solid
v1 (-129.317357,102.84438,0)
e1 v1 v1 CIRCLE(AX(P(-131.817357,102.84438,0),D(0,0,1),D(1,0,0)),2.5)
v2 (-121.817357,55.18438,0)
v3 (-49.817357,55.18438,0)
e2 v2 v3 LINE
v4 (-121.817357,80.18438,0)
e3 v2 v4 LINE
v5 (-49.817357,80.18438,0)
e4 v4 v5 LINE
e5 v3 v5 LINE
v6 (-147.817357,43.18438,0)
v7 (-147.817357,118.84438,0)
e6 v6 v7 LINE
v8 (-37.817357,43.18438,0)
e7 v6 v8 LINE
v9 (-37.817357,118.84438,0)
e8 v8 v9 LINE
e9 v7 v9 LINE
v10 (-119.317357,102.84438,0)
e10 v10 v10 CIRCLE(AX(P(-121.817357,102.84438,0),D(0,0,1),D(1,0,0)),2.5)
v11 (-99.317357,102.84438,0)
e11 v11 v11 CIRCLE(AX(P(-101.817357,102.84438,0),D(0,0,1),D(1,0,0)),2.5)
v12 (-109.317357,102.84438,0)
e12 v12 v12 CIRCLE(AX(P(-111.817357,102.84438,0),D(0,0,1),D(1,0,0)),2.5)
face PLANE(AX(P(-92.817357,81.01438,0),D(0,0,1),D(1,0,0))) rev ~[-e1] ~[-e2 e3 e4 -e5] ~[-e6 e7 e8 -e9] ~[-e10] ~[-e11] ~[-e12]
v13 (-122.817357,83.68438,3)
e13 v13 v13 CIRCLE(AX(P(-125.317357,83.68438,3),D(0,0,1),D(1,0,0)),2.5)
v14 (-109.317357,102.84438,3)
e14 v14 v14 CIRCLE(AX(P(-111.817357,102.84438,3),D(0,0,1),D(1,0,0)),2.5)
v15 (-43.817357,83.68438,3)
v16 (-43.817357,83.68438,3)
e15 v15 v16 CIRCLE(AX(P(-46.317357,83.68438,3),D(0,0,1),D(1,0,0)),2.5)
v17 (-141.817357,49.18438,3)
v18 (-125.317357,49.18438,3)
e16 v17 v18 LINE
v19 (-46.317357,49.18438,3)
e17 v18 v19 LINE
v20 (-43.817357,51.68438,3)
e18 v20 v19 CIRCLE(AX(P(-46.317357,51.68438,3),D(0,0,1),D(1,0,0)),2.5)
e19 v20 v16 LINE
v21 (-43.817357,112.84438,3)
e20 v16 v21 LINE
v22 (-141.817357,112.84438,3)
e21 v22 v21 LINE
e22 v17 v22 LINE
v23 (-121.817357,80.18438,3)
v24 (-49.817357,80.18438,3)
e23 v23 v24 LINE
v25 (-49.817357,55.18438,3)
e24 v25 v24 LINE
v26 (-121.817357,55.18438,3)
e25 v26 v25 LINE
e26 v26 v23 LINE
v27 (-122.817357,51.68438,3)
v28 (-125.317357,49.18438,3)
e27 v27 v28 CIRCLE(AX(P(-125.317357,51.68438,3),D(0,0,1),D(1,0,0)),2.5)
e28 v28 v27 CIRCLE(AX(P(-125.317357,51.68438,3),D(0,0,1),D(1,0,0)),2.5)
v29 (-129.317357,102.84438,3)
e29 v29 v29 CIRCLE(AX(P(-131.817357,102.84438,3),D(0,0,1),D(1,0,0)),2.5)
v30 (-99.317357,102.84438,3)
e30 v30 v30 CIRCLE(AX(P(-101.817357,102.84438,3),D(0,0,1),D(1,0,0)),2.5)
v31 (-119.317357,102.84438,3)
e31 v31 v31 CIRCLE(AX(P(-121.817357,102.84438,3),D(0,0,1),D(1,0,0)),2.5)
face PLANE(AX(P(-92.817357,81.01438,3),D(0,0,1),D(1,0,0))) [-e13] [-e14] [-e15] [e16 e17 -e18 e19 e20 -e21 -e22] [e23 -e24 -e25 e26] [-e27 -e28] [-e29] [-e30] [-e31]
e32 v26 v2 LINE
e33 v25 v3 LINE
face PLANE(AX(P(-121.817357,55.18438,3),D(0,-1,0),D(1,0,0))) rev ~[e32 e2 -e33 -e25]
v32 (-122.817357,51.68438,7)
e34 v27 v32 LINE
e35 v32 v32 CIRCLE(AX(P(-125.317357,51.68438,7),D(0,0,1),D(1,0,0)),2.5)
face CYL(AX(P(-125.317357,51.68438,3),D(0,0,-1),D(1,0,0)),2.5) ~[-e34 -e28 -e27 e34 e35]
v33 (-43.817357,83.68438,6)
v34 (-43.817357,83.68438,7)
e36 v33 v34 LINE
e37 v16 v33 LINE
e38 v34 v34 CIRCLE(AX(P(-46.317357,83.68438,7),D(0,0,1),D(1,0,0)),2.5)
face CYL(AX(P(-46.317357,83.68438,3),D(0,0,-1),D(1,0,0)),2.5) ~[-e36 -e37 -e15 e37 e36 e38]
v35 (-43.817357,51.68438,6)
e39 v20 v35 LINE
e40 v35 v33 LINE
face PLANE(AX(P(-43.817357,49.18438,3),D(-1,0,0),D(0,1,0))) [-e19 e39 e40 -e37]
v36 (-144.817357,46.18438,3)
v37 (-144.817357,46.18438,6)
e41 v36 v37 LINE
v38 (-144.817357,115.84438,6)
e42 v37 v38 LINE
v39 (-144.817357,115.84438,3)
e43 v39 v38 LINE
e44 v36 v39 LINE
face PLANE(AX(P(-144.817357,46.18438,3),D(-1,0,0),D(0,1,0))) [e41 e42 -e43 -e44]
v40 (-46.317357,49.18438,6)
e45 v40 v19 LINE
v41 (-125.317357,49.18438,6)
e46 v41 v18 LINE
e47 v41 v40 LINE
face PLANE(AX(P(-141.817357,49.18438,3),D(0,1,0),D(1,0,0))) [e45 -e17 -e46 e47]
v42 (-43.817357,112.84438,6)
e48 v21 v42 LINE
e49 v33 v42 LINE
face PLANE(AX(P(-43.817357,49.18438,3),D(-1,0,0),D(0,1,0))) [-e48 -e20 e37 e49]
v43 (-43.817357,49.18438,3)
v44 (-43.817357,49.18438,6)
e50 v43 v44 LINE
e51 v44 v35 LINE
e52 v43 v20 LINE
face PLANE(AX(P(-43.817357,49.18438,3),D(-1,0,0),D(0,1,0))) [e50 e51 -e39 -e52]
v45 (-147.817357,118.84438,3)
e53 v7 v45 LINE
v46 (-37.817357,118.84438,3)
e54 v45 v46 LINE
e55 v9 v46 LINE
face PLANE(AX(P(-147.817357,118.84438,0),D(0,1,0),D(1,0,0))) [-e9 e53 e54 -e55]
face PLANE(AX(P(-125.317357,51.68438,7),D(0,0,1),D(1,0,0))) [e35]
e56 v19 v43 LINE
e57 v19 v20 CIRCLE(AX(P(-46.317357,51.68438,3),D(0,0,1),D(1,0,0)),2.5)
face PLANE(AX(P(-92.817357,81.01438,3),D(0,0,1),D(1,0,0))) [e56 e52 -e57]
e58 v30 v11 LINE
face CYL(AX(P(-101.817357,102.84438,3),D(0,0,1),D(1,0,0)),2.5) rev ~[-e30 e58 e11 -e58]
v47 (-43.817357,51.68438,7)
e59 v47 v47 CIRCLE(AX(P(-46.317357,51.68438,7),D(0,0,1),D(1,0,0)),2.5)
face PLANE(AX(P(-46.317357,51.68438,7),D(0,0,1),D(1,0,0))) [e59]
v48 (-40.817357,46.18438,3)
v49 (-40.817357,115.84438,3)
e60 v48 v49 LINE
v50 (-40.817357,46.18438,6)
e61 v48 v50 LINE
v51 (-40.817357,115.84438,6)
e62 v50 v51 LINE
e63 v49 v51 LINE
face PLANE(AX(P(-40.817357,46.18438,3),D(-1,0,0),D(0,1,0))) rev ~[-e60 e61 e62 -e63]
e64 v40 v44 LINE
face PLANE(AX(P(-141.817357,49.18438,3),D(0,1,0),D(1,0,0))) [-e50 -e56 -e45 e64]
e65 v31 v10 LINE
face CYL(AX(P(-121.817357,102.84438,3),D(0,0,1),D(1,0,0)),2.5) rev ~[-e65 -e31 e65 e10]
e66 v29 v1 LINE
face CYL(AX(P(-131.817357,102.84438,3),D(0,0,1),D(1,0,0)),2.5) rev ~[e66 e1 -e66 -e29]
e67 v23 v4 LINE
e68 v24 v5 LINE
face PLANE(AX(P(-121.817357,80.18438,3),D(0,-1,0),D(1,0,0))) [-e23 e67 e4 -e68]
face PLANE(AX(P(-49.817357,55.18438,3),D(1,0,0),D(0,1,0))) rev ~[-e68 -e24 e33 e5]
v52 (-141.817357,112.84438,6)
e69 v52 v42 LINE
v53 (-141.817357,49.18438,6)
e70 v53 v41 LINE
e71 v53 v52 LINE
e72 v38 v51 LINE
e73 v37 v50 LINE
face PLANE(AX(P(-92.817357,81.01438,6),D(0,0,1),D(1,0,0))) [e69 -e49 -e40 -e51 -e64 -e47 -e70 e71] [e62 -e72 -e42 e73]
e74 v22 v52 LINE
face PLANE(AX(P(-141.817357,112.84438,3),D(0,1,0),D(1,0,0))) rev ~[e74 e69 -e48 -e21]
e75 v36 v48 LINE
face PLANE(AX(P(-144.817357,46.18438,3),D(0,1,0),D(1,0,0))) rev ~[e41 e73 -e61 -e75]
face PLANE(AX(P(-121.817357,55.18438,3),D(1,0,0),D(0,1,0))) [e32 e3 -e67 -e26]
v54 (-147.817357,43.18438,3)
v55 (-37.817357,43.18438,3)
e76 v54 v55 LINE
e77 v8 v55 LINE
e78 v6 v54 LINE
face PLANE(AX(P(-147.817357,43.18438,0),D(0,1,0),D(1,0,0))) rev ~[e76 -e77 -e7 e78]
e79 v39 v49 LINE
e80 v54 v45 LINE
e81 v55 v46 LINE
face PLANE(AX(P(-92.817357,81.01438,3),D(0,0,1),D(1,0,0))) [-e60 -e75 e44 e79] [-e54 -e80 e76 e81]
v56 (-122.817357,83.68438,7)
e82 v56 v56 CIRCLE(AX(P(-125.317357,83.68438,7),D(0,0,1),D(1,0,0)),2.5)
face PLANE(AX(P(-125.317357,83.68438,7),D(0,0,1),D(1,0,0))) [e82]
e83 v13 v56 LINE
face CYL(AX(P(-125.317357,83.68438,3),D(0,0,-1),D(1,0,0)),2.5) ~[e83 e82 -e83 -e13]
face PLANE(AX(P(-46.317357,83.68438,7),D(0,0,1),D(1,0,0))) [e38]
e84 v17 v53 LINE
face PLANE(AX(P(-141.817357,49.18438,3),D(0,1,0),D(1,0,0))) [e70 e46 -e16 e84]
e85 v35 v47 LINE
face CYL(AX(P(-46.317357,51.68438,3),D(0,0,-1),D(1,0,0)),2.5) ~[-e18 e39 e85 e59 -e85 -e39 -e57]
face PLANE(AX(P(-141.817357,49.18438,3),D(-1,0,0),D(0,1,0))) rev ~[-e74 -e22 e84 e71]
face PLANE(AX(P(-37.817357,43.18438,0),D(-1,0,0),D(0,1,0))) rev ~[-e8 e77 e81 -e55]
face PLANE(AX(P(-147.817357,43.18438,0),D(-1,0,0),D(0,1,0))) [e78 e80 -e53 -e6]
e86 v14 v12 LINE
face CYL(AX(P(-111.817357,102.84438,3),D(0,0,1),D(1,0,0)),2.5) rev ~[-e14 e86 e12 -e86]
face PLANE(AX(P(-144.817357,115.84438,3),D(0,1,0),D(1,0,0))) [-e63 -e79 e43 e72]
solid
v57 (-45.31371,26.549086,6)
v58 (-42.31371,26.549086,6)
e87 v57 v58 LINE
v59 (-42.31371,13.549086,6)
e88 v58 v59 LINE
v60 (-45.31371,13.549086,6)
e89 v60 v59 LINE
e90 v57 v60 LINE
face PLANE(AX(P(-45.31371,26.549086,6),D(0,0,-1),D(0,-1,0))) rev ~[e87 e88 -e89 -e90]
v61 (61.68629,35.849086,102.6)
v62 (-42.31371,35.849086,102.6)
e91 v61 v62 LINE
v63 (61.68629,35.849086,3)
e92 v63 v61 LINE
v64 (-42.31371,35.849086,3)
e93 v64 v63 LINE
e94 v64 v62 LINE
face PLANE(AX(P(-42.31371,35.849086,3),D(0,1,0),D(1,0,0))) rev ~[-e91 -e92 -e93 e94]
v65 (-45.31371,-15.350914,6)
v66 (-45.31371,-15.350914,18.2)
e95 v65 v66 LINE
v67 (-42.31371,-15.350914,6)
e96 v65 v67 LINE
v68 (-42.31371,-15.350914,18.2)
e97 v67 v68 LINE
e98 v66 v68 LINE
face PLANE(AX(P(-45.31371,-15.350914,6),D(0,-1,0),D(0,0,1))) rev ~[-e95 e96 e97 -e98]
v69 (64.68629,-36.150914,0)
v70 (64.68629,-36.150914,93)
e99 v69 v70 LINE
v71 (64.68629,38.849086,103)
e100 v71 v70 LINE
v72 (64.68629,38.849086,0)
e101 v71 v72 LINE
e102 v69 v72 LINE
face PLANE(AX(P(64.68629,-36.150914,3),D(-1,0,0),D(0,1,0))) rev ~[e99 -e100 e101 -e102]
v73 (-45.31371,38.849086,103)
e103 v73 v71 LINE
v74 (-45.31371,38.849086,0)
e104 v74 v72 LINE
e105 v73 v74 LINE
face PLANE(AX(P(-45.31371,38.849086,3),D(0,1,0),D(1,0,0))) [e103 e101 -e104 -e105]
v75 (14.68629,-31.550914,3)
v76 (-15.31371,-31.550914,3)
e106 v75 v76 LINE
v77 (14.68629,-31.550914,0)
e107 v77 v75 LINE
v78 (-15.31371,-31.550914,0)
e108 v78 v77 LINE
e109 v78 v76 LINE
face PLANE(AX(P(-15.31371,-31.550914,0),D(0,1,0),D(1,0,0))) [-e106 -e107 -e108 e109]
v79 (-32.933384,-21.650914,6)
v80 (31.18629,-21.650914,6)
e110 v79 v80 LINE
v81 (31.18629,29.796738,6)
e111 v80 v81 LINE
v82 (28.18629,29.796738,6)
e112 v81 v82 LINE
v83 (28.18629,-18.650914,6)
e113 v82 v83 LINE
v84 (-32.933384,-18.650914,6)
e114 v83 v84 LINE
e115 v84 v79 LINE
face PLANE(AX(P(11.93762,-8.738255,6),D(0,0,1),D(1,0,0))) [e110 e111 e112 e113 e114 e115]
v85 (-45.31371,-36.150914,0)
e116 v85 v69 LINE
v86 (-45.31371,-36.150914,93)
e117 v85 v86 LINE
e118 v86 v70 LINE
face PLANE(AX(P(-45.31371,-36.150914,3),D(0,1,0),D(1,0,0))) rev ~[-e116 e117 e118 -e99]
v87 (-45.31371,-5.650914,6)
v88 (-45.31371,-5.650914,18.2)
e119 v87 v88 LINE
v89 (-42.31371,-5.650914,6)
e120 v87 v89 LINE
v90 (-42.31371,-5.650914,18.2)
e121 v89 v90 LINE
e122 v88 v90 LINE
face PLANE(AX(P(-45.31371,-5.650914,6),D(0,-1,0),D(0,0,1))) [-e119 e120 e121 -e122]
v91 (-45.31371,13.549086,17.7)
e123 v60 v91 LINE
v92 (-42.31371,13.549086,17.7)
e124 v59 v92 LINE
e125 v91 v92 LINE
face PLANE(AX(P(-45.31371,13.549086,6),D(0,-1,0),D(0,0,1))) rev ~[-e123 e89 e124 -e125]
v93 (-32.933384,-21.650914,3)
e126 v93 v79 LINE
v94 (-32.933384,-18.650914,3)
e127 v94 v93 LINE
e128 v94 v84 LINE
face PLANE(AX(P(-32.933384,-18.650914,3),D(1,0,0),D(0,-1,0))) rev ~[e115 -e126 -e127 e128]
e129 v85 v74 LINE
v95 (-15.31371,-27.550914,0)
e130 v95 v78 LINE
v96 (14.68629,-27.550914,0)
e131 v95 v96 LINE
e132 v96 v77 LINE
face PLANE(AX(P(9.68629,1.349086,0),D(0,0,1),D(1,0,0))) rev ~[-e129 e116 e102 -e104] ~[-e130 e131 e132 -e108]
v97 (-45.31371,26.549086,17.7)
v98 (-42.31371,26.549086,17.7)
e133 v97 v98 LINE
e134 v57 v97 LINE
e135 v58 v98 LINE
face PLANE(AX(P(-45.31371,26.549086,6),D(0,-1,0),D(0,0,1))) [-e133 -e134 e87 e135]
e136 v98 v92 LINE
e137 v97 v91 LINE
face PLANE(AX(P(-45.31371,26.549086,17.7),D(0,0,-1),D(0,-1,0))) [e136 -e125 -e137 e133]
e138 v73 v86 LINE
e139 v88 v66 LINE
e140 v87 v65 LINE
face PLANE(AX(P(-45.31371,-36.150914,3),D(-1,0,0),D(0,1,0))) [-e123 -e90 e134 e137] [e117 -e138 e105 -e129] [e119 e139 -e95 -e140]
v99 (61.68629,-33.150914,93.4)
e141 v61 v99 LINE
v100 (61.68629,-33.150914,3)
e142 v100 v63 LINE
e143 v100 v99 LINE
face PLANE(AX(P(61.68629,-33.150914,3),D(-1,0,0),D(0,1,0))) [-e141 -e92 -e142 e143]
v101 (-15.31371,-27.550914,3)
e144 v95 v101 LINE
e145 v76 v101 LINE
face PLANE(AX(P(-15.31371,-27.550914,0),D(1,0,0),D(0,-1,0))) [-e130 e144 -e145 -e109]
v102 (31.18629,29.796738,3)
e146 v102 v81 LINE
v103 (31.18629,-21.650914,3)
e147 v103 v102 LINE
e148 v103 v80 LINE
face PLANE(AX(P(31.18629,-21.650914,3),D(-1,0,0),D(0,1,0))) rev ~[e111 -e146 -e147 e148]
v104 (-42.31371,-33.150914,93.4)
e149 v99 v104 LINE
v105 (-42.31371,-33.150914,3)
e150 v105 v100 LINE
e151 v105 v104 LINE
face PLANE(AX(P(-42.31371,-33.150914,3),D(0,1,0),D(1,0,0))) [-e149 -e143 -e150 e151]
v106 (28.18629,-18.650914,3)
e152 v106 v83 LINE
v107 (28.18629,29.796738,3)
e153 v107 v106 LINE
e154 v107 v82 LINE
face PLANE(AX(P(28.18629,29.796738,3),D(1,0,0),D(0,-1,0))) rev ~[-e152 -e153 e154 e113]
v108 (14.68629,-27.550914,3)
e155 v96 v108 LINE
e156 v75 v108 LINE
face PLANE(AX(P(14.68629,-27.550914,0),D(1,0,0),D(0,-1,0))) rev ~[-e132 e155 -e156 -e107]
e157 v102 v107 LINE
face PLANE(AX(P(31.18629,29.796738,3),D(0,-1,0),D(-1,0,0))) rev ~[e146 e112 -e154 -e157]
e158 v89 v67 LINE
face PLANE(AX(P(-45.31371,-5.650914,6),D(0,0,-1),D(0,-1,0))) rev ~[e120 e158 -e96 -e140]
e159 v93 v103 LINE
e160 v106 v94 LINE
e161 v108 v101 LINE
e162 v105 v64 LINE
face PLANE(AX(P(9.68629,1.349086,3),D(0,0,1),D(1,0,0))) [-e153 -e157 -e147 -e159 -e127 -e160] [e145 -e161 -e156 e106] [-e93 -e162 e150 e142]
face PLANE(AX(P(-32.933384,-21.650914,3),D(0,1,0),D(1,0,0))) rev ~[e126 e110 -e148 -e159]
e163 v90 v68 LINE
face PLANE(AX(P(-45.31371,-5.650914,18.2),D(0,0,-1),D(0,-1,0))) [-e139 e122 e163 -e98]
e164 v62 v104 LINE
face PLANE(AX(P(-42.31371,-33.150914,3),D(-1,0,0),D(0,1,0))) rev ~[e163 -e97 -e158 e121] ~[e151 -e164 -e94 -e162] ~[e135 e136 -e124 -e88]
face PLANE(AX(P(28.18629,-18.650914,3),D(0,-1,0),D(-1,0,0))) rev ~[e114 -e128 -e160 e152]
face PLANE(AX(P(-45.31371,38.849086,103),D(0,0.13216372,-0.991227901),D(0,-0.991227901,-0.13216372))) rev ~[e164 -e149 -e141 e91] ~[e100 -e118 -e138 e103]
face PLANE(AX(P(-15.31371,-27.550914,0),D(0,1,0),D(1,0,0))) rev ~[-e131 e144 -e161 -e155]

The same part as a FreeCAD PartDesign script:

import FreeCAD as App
import Part
import Sketcher

V = App.Vector
Q = App.Units.Quantity

doc = App.newDocument("Part")
params = doc.addObject("Spreadsheet::Sheet", "Params")
for row, (alias, value) in enumerate([
    ("sketch1_width", "110 mm"),
    ("sketch1_height", "75 mm"),
    ("pad1_length", "3 mm"),
    ("sketch2_width", "110 mm"),
    ("sketch2_width2", "104 mm"),
    ("sketch2_height", "75 mm"),
    ("sketch2_height2", "69 mm"),
    ("pad2_length", "100 mm"),
    ("sketch3_width", "75 mm"),
    ("sketch3_height", "10 mm"),
    ("pocket1_length", "120 mm"),
    ("sketch4_width", "13 mm"),
    ("sketch4_height", "11.7 mm"),
    ("pocket2_length", "5 mm"),
    ("sketch5_width", "9.7 mm"),
    ("sketch5_height", "12.2 mm"),
    ("pocket3_length", "5 mm"),
    ("sketch6_width", "30 mm"),
    ("sketch6_height", "4 mm"),
    ("pocket4_length", "5 mm"),
    ("sketch7_width", "3 mm"),
    ("pad3_length", "3 mm"),
    ("sketch8_width", "110 mm"),
    ("sketch8_height", "75.66 mm"),
    ("pad4_length", "3 mm"),
    ("sketch9_width", "104 mm"),
    ("sketch9_width2", "98 mm"),
    ("sketch9_height", "69.66 mm"),
    ("pad5_length", "3 mm"),
    ("sketch10_width", "72 mm"),
    ("sketch10_height", "25 mm"),
    ("pocket5_length", "5 mm"),
    ("sketch11_diameter", "5 mm"),
    ("pocket6_length", "5 mm"),
    ("sketch12_diameter", "5 mm"),
    ("pad6_length", "4 mm"),
], start=1):
    params.set(f"A{row}", alias)
    params.set(f"B{row}", "=" + value)
    params.setAlias(f"B{row}", alias)

body = doc.addObject("PartDesign::Body", "Body")

sketch1 = doc.addObject("Sketcher::SketchObject", "Sketch")
body.addObject(sketch1)
sketch1.AttachmentSupport = (doc.XY_Plane, [""])
sketch1.MapMode = "FlatFace"
sketch1.addGeometry(Part.LineSegment(V(-45, 39, 0), V(-45, -36, 0)), False)
sketch1.addGeometry(Part.LineSegment(V(-45, -36, 0), V(65, -36, 0)), False)
sketch1.addGeometry(Part.LineSegment(V(65, -36, 0), V(65, 39, 0)), False)
sketch1.addGeometry(Part.LineSegment(V(65, 39, 0), V(-45, 39, 0)), False)
sketch1.addConstraint(Sketcher.Constraint("Coincident", 0, 2, 1, 1))
sketch1.addConstraint(Sketcher.Constraint("Coincident", 1, 2, 2, 1))
sketch1.addConstraint(Sketcher.Constraint("Coincident", 2, 2, 3, 1))
sketch1.addConstraint(Sketcher.Constraint("Coincident", 3, 2, 0, 1))
sketch1.addConstraint(Sketcher.Constraint("Vertical", 0))
sketch1.addConstraint(Sketcher.Constraint("Horizontal", 1))
sketch1.addConstraint(Sketcher.Constraint("Vertical", 2))
sketch1.addConstraint(Sketcher.Constraint("Horizontal", 3))
sketch1.addConstraint(Sketcher.Constraint("DistanceX", 1, 1, 1, 2, Q("110 mm")))
sketch1.addConstraint(Sketcher.Constraint("DistanceY", 0, 2, 0, 1, Q("75 mm")))
sketch1.addConstraint(Sketcher.Constraint("DistanceX", 0, 2, -1, 1, Q("45.31371 mm")))
sketch1.addConstraint(Sketcher.Constraint("DistanceY", 0, 2, -1, 1, Q("36.150914 mm")))
sketch1.setExpression("Constraints[8]", "Params.sketch1_width")
sketch1.setExpression("Constraints[9]", "Params.sketch1_height")
pad1 = doc.addObject("PartDesign::Pad", "Pad")
body.addObject(pad1)
pad1.Profile = sketch1
pad1.setExpression("Length", "Params.pad1_length")

sketch2 = doc.addObject("Sketcher::SketchObject", "Sketch001")
body.addObject(sketch2)
sketch2.AttachmentSupport = (doc.XY_Plane, [""])
sketch2.MapMode = "FlatFace"
sketch2.AttachmentOffset = App.Placement(V(0, 0, 3), App.Rotation())
sketch2.addGeometry(Part.LineSegment(V(-45, 39, 0), V(-45, -36, 0)), False)
sketch2.addGeometry(Part.LineSegment(V(-45, -36, 0), V(65, -36, 0)), False)
sketch2.addGeometry(Part.LineSegment(V(65, -36, 0), V(65, 39, 0)), False)
sketch2.addGeometry(Part.LineSegment(V(65, 39, 0), V(-45, 39, 0)), False)
sketch2.addGeometry(Part.LineSegment(V(62, -33, 0), V(-42, -33, 0)), False)
sketch2.addGeometry(Part.LineSegment(V(-42, -33, 0), V(-42, 36, 0)), False)
sketch2.addGeometry(Part.LineSegment(V(-42, 36, 0), V(62, 36, 0)), False)
sketch2.addGeometry(Part.LineSegment(V(62, 36, 0), V(62, -33, 0)), False)
sketch2.addConstraint(Sketcher.Constraint("Coincident", 0, 2, 1, 1))
sketch2.addConstraint(Sketcher.Constraint("Coincident", 1, 2, 2, 1))
sketch2.addConstraint(Sketcher.Constraint("Coincident", 2, 2, 3, 1))
sketch2.addConstraint(Sketcher.Constraint("Coincident", 3, 2, 0, 1))
sketch2.addConstraint(Sketcher.Constraint("Coincident", 4, 2, 5, 1))
sketch2.addConstraint(Sketcher.Constraint("Coincident", 5, 2, 6, 1))
sketch2.addConstraint(Sketcher.Constraint("Coincident", 6, 2, 7, 1))
sketch2.addConstraint(Sketcher.Constraint("Coincident", 7, 2, 4, 1))
sketch2.addConstraint(Sketcher.Constraint("Vertical", 0))
sketch2.addConstraint(Sketcher.Constraint("Horizontal", 1))
sketch2.addConstraint(Sketcher.Constraint("Vertical", 2))
sketch2.addConstraint(Sketcher.Constraint("Horizontal", 3))
sketch2.addConstraint(Sketcher.Constraint("Horizontal", 4))
sketch2.addConstraint(Sketcher.Constraint("Vertical", 5))
sketch2.addConstraint(Sketcher.Constraint("Horizontal", 6))
sketch2.addConstraint(Sketcher.Constraint("Vertical", 7))
sketch2.addConstraint(Sketcher.Constraint("DistanceX", 1, 1, 1, 2, Q("110 mm")))
sketch2.addConstraint(Sketcher.Constraint("DistanceX", 4, 2, 4, 1, Q("104 mm")))
sketch2.addConstraint(Sketcher.Constraint("DistanceY", 0, 2, 0, 1, Q("75 mm")))
sketch2.addConstraint(Sketcher.Constraint("DistanceY", 5, 1, 5, 2, Q("69 mm")))
sketch2.addConstraint(Sketcher.Constraint("DistanceX", 0, 2, 4, 2, Q("3 mm")))
sketch2.addConstraint(Sketcher.Constraint("DistanceY", 0, 2, 4, 2, Q("3 mm")))
sketch2.addConstraint(Sketcher.Constraint("DistanceX", 0, 2, -1, 1, Q("45.31371 mm")))
sketch2.addConstraint(Sketcher.Constraint("DistanceY", 0, 2, -1, 1, Q("36.150914 mm")))
sketch2.setExpression("Constraints[16]", "Params.sketch2_width")
sketch2.setExpression("Constraints[17]", "Params.sketch2_width2")
sketch2.setExpression("Constraints[18]", "Params.sketch2_height")
sketch2.setExpression("Constraints[19]", "Params.sketch2_height2")
pad2 = doc.addObject("PartDesign::Pad", "Pad001")
body.addObject(pad2)
pad2.Profile = sketch2
pad2.setExpression("Length", "Params.pad2_length")

sketch3 = doc.addObject("Sketcher::SketchObject", "Sketch002")
body.addObject(sketch3)
sketch3.AttachmentSupport = (doc.YZ_Plane, [""])
sketch3.MapMode = "FlatFace"
sketch3.AttachmentOffset = App.Placement(V(0, 0, -45.31371), App.Rotation())
sketch3.addGeometry(Part.LineSegment(V(39, 103, 0), V(-36, 93, 0)), False)
sketch3.addGeometry(Part.LineSegment(V(-36, 93, 0), V(-36, 103, 0)), False)
sketch3.addGeometry(Part.LineSegment(V(-36, 103, 0), V(39, 103, 0)), False)
sketch3.addConstraint(Sketcher.Constraint("Coincident", 0, 2, 1, 1))
sketch3.addConstraint(Sketcher.Constraint("Coincident", 1, 2, 2, 1))
sketch3.addConstraint(Sketcher.Constraint("Coincident", 2, 2, 0, 1))
sketch3.addConstraint(Sketcher.Constraint("Vertical", 1))
sketch3.addConstraint(Sketcher.Constraint("Horizontal", 2))
sketch3.addConstraint(Sketcher.Constraint("DistanceX", 2, 1, 2, 2, Q("75 mm")))
sketch3.addConstraint(Sketcher.Constraint("DistanceY", 1, 1, 1, 2, Q("10 mm")))
sketch3.addConstraint(Sketcher.Constraint("DistanceY", -1, 1, 0, 2, Q("93 mm")))
sketch3.addConstraint(Sketcher.Constraint("DistanceX", 0, 2, -1, 1, Q("36.150914 mm")))
sketch3.setExpression("Constraints[5]", "Params.sketch3_width")
sketch3.setExpression("Constraints[6]", "Params.sketch3_height")
pocket1 = doc.addObject("PartDesign::Pocket", "Pocket")
body.addObject(pocket1)
pocket1.Profile = sketch3
pocket1.setExpression("Length", "Params.pocket1_length")
pocket1.Reversed = True

sketch4 = doc.addObject("Sketcher::SketchObject", "Sketch003")
body.addObject(sketch4)
sketch4.AttachmentSupport = (doc.YZ_Plane, [""])
sketch4.MapMode = "FlatFace"
sketch4.AttachmentOffset = App.Placement(V(0, 0, -45.31371), App.Rotation())
sketch4.addGeometry(Part.LineSegment(V(27, 18, 0), V(27, 6, 0)), False)
sketch4.addGeometry(Part.LineSegment(V(27, 6, 0), V(14, 6, 0)), False)
sketch4.addGeometry(Part.LineSegment(V(14, 6, 0), V(14, 18, 0)), False)
sketch4.addGeometry(Part.LineSegment(V(14, 18, 0), V(27, 18, 0)), False)
sketch4.addConstraint(Sketcher.Constraint("Coincident", 0, 2, 1, 1))
sketch4.addConstraint(Sketcher.Constraint("Coincident", 1, 2, 2, 1))
sketch4.addConstraint(Sketcher.Constraint("Coincident", 2, 2, 3, 1))
sketch4.addConstraint(Sketcher.Constraint("Coincident", 3, 2, 0, 1))
sketch4.addConstraint(Sketcher.Constraint("Vertical", 0))
sketch4.addConstraint(Sketcher.Constraint("Horizontal", 1))
sketch4.addConstraint(Sketcher.Constraint("Vertical", 2))
sketch4.addConstraint(Sketcher.Constraint("Horizontal", 3))
sketch4.addConstraint(Sketcher.Constraint("DistanceX", 1, 2, 1, 1, Q("13 mm")))
sketch4.addConstraint(Sketcher.Constraint("DistanceY", 0, 2, 0, 1, Q("11.7 mm")))
sketch4.addConstraint(Sketcher.Constraint("DistanceY", -1, 1, 0, 2, Q("6 mm")))
sketch4.addConstraint(Sketcher.Constraint("DistanceX", -1, 1, 0, 2, Q("26.549086 mm")))
sketch4.setExpression("Constraints[8]", "Params.sketch4_width")
sketch4.setExpression("Constraints[9]", "Params.sketch4_height")
pocket2 = doc.addObject("PartDesign::Pocket", "Pocket001")
body.addObject(pocket2)
pocket2.Profile = sketch4
pocket2.setExpression("Length", "Params.pocket2_length")
pocket2.Reversed = True

sketch5 = doc.addObject("Sketcher::SketchObject", "Sketch004")
body.addObject(sketch5)
sketch5.AttachmentSupport = (doc.YZ_Plane, [""])
sketch5.MapMode = "FlatFace"
sketch5.AttachmentOffset = App.Placement(V(0, 0, -45.31371), App.Rotation())
sketch5.addGeometry(Part.LineSegment(V(-6, 18, 0), V(-6, 6, 0)), False)
sketch5.addGeometry(Part.LineSegment(V(-6, 6, 0), V(-15, 6, 0)), False)
sketch5.addGeometry(Part.LineSegment(V(-15, 6, 0), V(-15, 18, 0)), False)
sketch5.addGeometry(Part.LineSegment(V(-15, 18, 0), V(-6, 18, 0)), False)
sketch5.addConstraint(Sketcher.Constraint("Coincident", 0, 2, 1, 1))
sketch5.addConstraint(Sketcher.Constraint("Coincident", 1, 2, 2, 1))
sketch5.addConstraint(Sketcher.Constraint("Coincident", 2, 2, 3, 1))
sketch5.addConstraint(Sketcher.Constraint("Coincident", 3, 2, 0, 1))
sketch5.addConstraint(Sketcher.Constraint("Vertical", 0))
sketch5.addConstraint(Sketcher.Constraint("Horizontal", 1))
sketch5.addConstraint(Sketcher.Constraint("Vertical", 2))
sketch5.addConstraint(Sketcher.Constraint("Horizontal", 3))
sketch5.addConstraint(Sketcher.Constraint("DistanceX", 1, 2, 1, 1, Q("9.7 mm")))
sketch5.addConstraint(Sketcher.Constraint("DistanceY", 0, 2, 0, 1, Q("12.2 mm")))
sketch5.addConstraint(Sketcher.Constraint("DistanceY", -1, 1, 0, 2, Q("6 mm")))
sketch5.addConstraint(Sketcher.Constraint("DistanceX", 0, 2, -1, 1, Q("5.650914 mm")))
sketch5.setExpression("Constraints[8]", "Params.sketch5_width")
sketch5.setExpression("Constraints[9]", "Params.sketch5_height")
pocket3 = doc.addObject("PartDesign::Pocket", "Pocket002")
body.addObject(pocket3)
pocket3.Profile = sketch5
pocket3.setExpression("Length", "Params.pocket3_length")
pocket3.Reversed = True

sketch6 = doc.addObject("Sketcher::SketchObject", "Sketch005")
body.addObject(sketch6)
sketch6.AttachmentSupport = (doc.XY_Plane, [""])
sketch6.MapMode = "FlatFace"
sketch6.addGeometry(Part.LineSegment(V(-15.3, -31.6, 0), V(-15.3, -27.6, 0)), False)
sketch6.addGeometry(Part.LineSegment(V(-15.3, -27.6, 0), V(14.7, -27.6, 0)), False)
sketch6.addGeometry(Part.LineSegment(V(14.7, -27.6, 0), V(14.7, -31.6, 0)), False)
sketch6.addGeometry(Part.LineSegment(V(14.7, -31.6, 0), V(-15.3, -31.6, 0)), False)
sketch6.addConstraint(Sketcher.Constraint("Coincident", 0, 2, 1, 1))
sketch6.addConstraint(Sketcher.Constraint("Coincident", 1, 2, 2, 1))
sketch6.addConstraint(Sketcher.Constraint("Coincident", 2, 2, 3, 1))
sketch6.addConstraint(Sketcher.Constraint("Coincident", 3, 2, 0, 1))
sketch6.addConstraint(Sketcher.Constraint("Vertical", 0))
sketch6.addConstraint(Sketcher.Constraint("Horizontal", 1))
sketch6.addConstraint(Sketcher.Constraint("Vertical", 2))
sketch6.addConstraint(Sketcher.Constraint("Horizontal", 3))
sketch6.addConstraint(Sketcher.Constraint("DistanceX", 1, 1, 1, 2, Q("30 mm")))
sketch6.addConstraint(Sketcher.Constraint("DistanceY", 0, 1, 0, 2, Q("4 mm")))
sketch6.addConstraint(Sketcher.Constraint("DistanceX", 0, 2, -1, 1, Q("15.31371 mm")))
sketch6.addConstraint(Sketcher.Constraint("DistanceY", 0, 2, -1, 1, Q("27.550914 mm")))
sketch6.setExpression("Constraints[8]", "Params.sketch6_width")
sketch6.setExpression("Constraints[9]", "Params.sketch6_height")
pocket4 = doc.addObject("PartDesign::Pocket", "Pocket003")
body.addObject(pocket4)
pocket4.Profile = sketch6
pocket4.setExpression("Length", "Params.pocket4_length")
pocket4.Reversed = True

sketch7 = doc.addObject("Sketcher::SketchObject", "Sketch006")
body.addObject(sketch7)
sketch7.AttachmentSupport = (doc.XY_Plane, [""])
sketch7.MapMode = "FlatFace"
sketch7.AttachmentOffset = App.Placement(V(0, 0, 3), App.Rotation())
sketch7.addGeometry(Part.LineSegment(V(-32.9, -21.7, 0), V(31.2, -21.7, 0)), False)
sketch7.addGeometry(Part.LineSegment(V(31.2, -21.7, 0), V(31.2, 29.8, 0)), False)
sketch7.addGeometry(Part.LineSegment(V(31.2, 29.8, 0), V(28.2, 29.8, 0)), False)
sketch7.addGeometry(Part.LineSegment(V(28.2, 29.8, 0), V(28.2, -18.7, 0)), False)
sketch7.addGeometry(Part.LineSegment(V(28.2, -18.7, 0), V(-32.9, -18.7, 0)), False)
sketch7.addGeometry(Part.LineSegment(V(-32.9, -18.7, 0), V(-32.9, -21.7, 0)), False)
sketch7.addConstraint(Sketcher.Constraint("Coincident", 0, 2, 1, 1))
sketch7.addConstraint(Sketcher.Constraint("Coincident", 1, 2, 2, 1))
sketch7.addConstraint(Sketcher.Constraint("Coincident", 2, 2, 3, 1))
sketch7.addConstraint(Sketcher.Constraint("Coincident", 3, 2, 4, 1))
sketch7.addConstraint(Sketcher.Constraint("Coincident", 4, 2, 5, 1))
sketch7.addConstraint(Sketcher.Constraint("Coincident", 5, 2, 0, 1))
sketch7.addConstraint(Sketcher.Constraint("Horizontal", 0))
sketch7.addConstraint(Sketcher.Constraint("Vertical", 1))
sketch7.addConstraint(Sketcher.Constraint("Horizontal", 2))
sketch7.addConstraint(Sketcher.Constraint("Vertical", 3))
sketch7.addConstraint(Sketcher.Constraint("Horizontal", 4))
sketch7.addConstraint(Sketcher.Constraint("Vertical", 5))
sketch7.addConstraint(Sketcher.Constraint("Equal", 2, 5))
sketch7.addConstraint(Sketcher.Constraint("DistanceX", 2, 2, 2, 1, Q("3 mm")))
sketch7.addConstraint(Sketcher.Constraint("DistanceX", 0, 1, 0, 2, Q("64.119674 mm")))
sketch7.addConstraint(Sketcher.Constraint("DistanceY", 1, 1, 1, 2, Q("51.447652 mm")))
sketch7.addConstraint(Sketcher.Constraint("DistanceX", -1, 1, 0, 2, Q("31.18629 mm")))
sketch7.addConstraint(Sketcher.Constraint("DistanceY", -1, 1, 1, 2, Q("29.796738 mm")))
sketch7.setExpression("Constraints[13]", "Params.sketch7_width")
pad3 = doc.addObject("PartDesign::Pad", "Pad002")
body.addObject(pad3)
pad3.Profile = sketch7
pad3.setExpression("Length", "Params.pad3_length")
body2 = doc.addObject("PartDesign::Body", "Body001")

sketch8 = doc.addObject("Sketcher::SketchObject", "Sketch007")
body2.addObject(sketch8)
sketch8.AttachmentSupport = (doc.getObject("XY_Plane001"), [""])
sketch8.MapMode = "FlatFace"
sketch8.addGeometry(Part.LineSegment(V(-148, 119, 0), V(-148, 43, 0)), False)
sketch8.addGeometry(Part.LineSegment(V(-148, 43, 0), V(-38, 43, 0)), False)
sketch8.addGeometry(Part.LineSegment(V(-38, 43, 0), V(-38, 119, 0)), False)
sketch8.addGeometry(Part.LineSegment(V(-38, 119, 0), V(-148, 119, 0)), False)
sketch8.addConstraint(Sketcher.Constraint("Coincident", 0, 2, 1, 1))
sketch8.addConstraint(Sketcher.Constraint("Coincident", 1, 2, 2, 1))
sketch8.addConstraint(Sketcher.Constraint("Coincident", 2, 2, 3, 1))
sketch8.addConstraint(Sketcher.Constraint("Coincident", 3, 2, 0, 1))
sketch8.addConstraint(Sketcher.Constraint("Vertical", 0))
sketch8.addConstraint(Sketcher.Constraint("Horizontal", 1))
sketch8.addConstraint(Sketcher.Constraint("Vertical", 2))
sketch8.addConstraint(Sketcher.Constraint("Horizontal", 3))
sketch8.addConstraint(Sketcher.Constraint("DistanceX", 1, 1, 1, 2, Q("110 mm")))
sketch8.addConstraint(Sketcher.Constraint("DistanceY", 0, 2, 0, 1, Q("75.66 mm")))
sketch8.addConstraint(Sketcher.Constraint("DistanceY", -1, 1, 0, 2, Q("43.18438 mm")))
sketch8.addConstraint(Sketcher.Constraint("DistanceX", 0, 2, -1, 1, Q("147.817357 mm")))
sketch8.setExpression("Constraints[8]", "Params.sketch8_width")
sketch8.setExpression("Constraints[9]", "Params.sketch8_height")
pad4 = doc.addObject("PartDesign::Pad", "Pad003")
body2.addObject(pad4)
pad4.Profile = sketch8
pad4.setExpression("Length", "Params.pad4_length")

sketch9 = doc.addObject("Sketcher::SketchObject", "Sketch008")
body2.addObject(sketch9)
sketch9.AttachmentSupport = (doc.getObject("XY_Plane001"), [""])
sketch9.MapMode = "FlatFace"
sketch9.AttachmentOffset = App.Placement(V(0, 0, 3), App.Rotation())
sketch9.addGeometry(Part.LineSegment(V(-145, 116, 0), V(-145, 46, 0)), False)
sketch9.addGeometry(Part.LineSegment(V(-145, 46, 0), V(-41, 46, 0)), False)
sketch9.addGeometry(Part.LineSegment(V(-41, 46, 0), V(-41, 116, 0)), False)
sketch9.addGeometry(Part.LineSegment(V(-41, 116, 0), V(-145, 116, 0)), False)
sketch9.addGeometry(Part.LineSegment(V(-44, 49, 0), V(-142, 49, 0)), False)
sketch9.addGeometry(Part.LineSegment(V(-142, 49, 0), V(-142, 113, 0)), False)
sketch9.addGeometry(Part.LineSegment(V(-142, 113, 0), V(-44, 113, 0)), False)
sketch9.addGeometry(Part.LineSegment(V(-44, 113, 0), V(-44, 49, 0)), False)
sketch9.addConstraint(Sketcher.Constraint("Coincident", 0, 2, 1, 1))
sketch9.addConstraint(Sketcher.Constraint("Coincident", 1, 2, 2, 1))
sketch9.addConstraint(Sketcher.Constraint("Coincident", 2, 2, 3, 1))
sketch9.addConstraint(Sketcher.Constraint("Coincident", 3, 2, 0, 1))
sketch9.addConstraint(Sketcher.Constraint("Coincident", 4, 2, 5, 1))
sketch9.addConstraint(Sketcher.Constraint("Coincident", 5, 2, 6, 1))
sketch9.addConstraint(Sketcher.Constraint("Coincident", 6, 2, 7, 1))
sketch9.addConstraint(Sketcher.Constraint("Coincident", 7, 2, 4, 1))
sketch9.addConstraint(Sketcher.Constraint("Vertical", 0))
sketch9.addConstraint(Sketcher.Constraint("Horizontal", 1))
sketch9.addConstraint(Sketcher.Constraint("Vertical", 2))
sketch9.addConstraint(Sketcher.Constraint("Horizontal", 3))
sketch9.addConstraint(Sketcher.Constraint("Horizontal", 4))
sketch9.addConstraint(Sketcher.Constraint("Vertical", 5))
sketch9.addConstraint(Sketcher.Constraint("Horizontal", 6))
sketch9.addConstraint(Sketcher.Constraint("Vertical", 7))
sketch9.addConstraint(Sketcher.Constraint("DistanceX", 1, 1, 1, 2, Q("104 mm")))
sketch9.addConstraint(Sketcher.Constraint("DistanceX", 4, 2, 4, 1, Q("98 mm")))
sketch9.addConstraint(Sketcher.Constraint("DistanceX", 0, 2, 4, 2, Q("3 mm")))
sketch9.addConstraint(Sketcher.Constraint("DistanceY", 0, 2, 4, 2, Q("3 mm")))
sketch9.addConstraint(Sketcher.Constraint("DistanceY", 5, 2, 3, 2, Q("3 mm")))
sketch9.addConstraint(Sketcher.Constraint("DistanceY", 0, 2, 0, 1, Q("69.66 mm")))
sketch9.addConstraint(Sketcher.Constraint("DistanceY", -1, 1, 0, 2, Q("46.18438 mm")))
sketch9.addConstraint(Sketcher.Constraint("DistanceX", 0, 2, -1, 1, Q("144.817357 mm")))
sketch9.setExpression("Constraints[16]", "Params.sketch9_width")
sketch9.setExpression("Constraints[17]", "Params.sketch9_width2")
sketch9.setExpression("Constraints[21]", "Params.sketch9_height")
pad5 = doc.addObject("PartDesign::Pad", "Pad004")
body2.addObject(pad5)
pad5.Profile = sketch9
pad5.setExpression("Length", "Params.pad5_length")

sketch10 = doc.addObject("Sketcher::SketchObject", "Sketch009")
body2.addObject(sketch10)
sketch10.AttachmentSupport = (doc.getObject("XY_Plane001"), [""])
sketch10.MapMode = "FlatFace"
sketch10.AttachmentOffset = App.Placement(V(0, 0, 3), App.Rotation())
sketch10.addGeometry(Part.LineSegment(V(-122, 80, 0), V(-122, 55, 0)), False)
sketch10.addGeometry(Part.LineSegment(V(-122, 55, 0), V(-50, 55, 0)), False)
sketch10.addGeometry(Part.LineSegment(V(-50, 55, 0), V(-50, 80, 0)), False)
sketch10.addGeometry(Part.LineSegment(V(-50, 80, 0), V(-122, 80, 0)), False)
sketch10.addConstraint(Sketcher.Constraint("Coincident", 0, 2, 1, 1))
sketch10.addConstraint(Sketcher.Constraint("Coincident", 1, 2, 2, 1))
sketch10.addConstraint(Sketcher.Constraint("Coincident", 2, 2, 3, 1))
sketch10.addConstraint(Sketcher.Constraint("Coincident", 3, 2, 0, 1))
sketch10.addConstraint(Sketcher.Constraint("Vertical", 0))
sketch10.addConstraint(Sketcher.Constraint("Horizontal", 1))
sketch10.addConstraint(Sketcher.Constraint("Vertical", 2))
sketch10.addConstraint(Sketcher.Constraint("Horizontal", 3))
sketch10.addConstraint(Sketcher.Constraint("DistanceX", 1, 1, 1, 2, Q("72 mm")))
sketch10.addConstraint(Sketcher.Constraint("DistanceY", 0, 2, 0, 1, Q("25 mm")))
sketch10.addConstraint(Sketcher.Constraint("DistanceY", -1, 1, 0, 2, Q("55.18438 mm")))
sketch10.addConstraint(Sketcher.Constraint("DistanceX", 0, 2, -1, 1, Q("121.817357 mm")))
sketch10.setExpression("Constraints[8]", "Params.sketch10_width")
sketch10.setExpression("Constraints[9]", "Params.sketch10_height")
pocket5 = doc.addObject("PartDesign::Pocket", "Pocket004")
body2.addObject(pocket5)
pocket5.Profile = sketch10
pocket5.setExpression("Length", "Params.pocket5_length")

sketch11 = doc.addObject("Sketcher::SketchObject", "Sketch010")
body2.addObject(sketch11)
sketch11.AttachmentSupport = (doc.getObject("XY_Plane001"), [""])
sketch11.MapMode = "FlatFace"
sketch11.AttachmentOffset = App.Placement(V(0, 0, 3), App.Rotation())
sketch11.addGeometry(Part.Circle(V(-131.8, 102.8, 0), V(0, 0, 1), 2.5), False)
sketch11.addGeometry(Part.Circle(V(-121.8, 102.8, 0), V(0, 0, 1), 2.5), False)
sketch11.addGeometry(Part.Circle(V(-111.8, 102.8, 0), V(0, 0, 1), 2.5), False)
sketch11.addGeometry(Part.Circle(V(-101.8, 102.8, 0), V(0, 0, 1), 2.5), False)
sketch11.addConstraint(Sketcher.Constraint("Equal", 0, 1))
sketch11.addConstraint(Sketcher.Constraint("Equal", 1, 2))
sketch11.addConstraint(Sketcher.Constraint("Equal", 2, 3))
sketch11.addConstraint(Sketcher.Constraint("Horizontal", 0, 3, 1, 3))
sketch11.addConstraint(Sketcher.Constraint("Horizontal", 1, 3, 2, 3))
sketch11.addConstraint(Sketcher.Constraint("Horizontal", 2, 3, 3, 3))
sketch11.addConstraint(Sketcher.Constraint("Diameter", 0, Q("5 mm")))
sketch11.addConstraint(Sketcher.Constraint("DistanceX", 0, 3, 1, 3, Q("10 mm")))
sketch11.addConstraint(Sketcher.Constraint("DistanceX", 1, 3, 2, 3, Q("10 mm")))
sketch11.addConstraint(Sketcher.Constraint("DistanceX", 2, 3, 3, 3, Q("10 mm")))
sketch11.addConstraint(Sketcher.Constraint("DistanceY", -1, 1, 0, 3, Q("102.84438 mm")))
sketch11.addConstraint(Sketcher.Constraint("DistanceX", 0, 3, -1, 1, Q("131.817357 mm")))
sketch11.setExpression("Constraints[6]", "Params.sketch11_diameter")
pocket6 = doc.addObject("PartDesign::Pocket", "Pocket005")
body2.addObject(pocket6)
pocket6.Profile = sketch11
pocket6.setExpression("Length", "Params.pocket6_length")

sketch12 = doc.addObject("Sketcher::SketchObject", "Sketch011")
body2.addObject(sketch12)
sketch12.AttachmentSupport = (doc.getObject("XY_Plane001"), [""])
sketch12.MapMode = "FlatFace"
sketch12.AttachmentOffset = App.Placement(V(0, 0, 3), App.Rotation())
sketch12.addGeometry(Part.Circle(V(-125.3, 83.7, 0), V(0, 0, 1), 2.5), False)
sketch12.addGeometry(Part.Circle(V(-46.3, 83.7, 0), V(0, 0, 1), 2.5), False)
sketch12.addGeometry(Part.Circle(V(-46.3, 51.7, 0), V(0, 0, 1), 2.5), False)
sketch12.addGeometry(Part.Circle(V(-125.3, 51.7, 0), V(0, 0, 1), 2.5), False)
sketch12.addConstraint(Sketcher.Constraint("Equal", 0, 1))
sketch12.addConstraint(Sketcher.Constraint("Equal", 1, 2))
sketch12.addConstraint(Sketcher.Constraint("Equal", 2, 3))
sketch12.addConstraint(Sketcher.Constraint("Horizontal", 0, 3, 1, 3))
sketch12.addConstraint(Sketcher.Constraint("Horizontal", 2, 3, 3, 3))
sketch12.addConstraint(Sketcher.Constraint("Vertical", 1, 3, 2, 3))
sketch12.addConstraint(Sketcher.Constraint("Vertical", 0, 3, 3, 3))
sketch12.addConstraint(Sketcher.Constraint("Diameter", 0, Q("5 mm")))
sketch12.addConstraint(Sketcher.Constraint("DistanceX", 0, 3, 1, 3, Q("79 mm")))
sketch12.addConstraint(Sketcher.Constraint("DistanceY", 2, 3, 1, 3, Q("32 mm")))
sketch12.addConstraint(Sketcher.Constraint("DistanceY", -1, 1, 0, 3, Q("83.68438 mm")))
sketch12.addConstraint(Sketcher.Constraint("DistanceX", 0, 3, -1, 1, Q("125.317357 mm")))
sketch12.setExpression("Constraints[7]", "Params.sketch12_diameter")
pad6 = doc.addObject("PartDesign::Pad", "Pad005")
body2.addObject(pad6)
pad6.Profile = sketch12
pad6.setExpression("Length", "Params.pad6_length")

doc.recompute()
